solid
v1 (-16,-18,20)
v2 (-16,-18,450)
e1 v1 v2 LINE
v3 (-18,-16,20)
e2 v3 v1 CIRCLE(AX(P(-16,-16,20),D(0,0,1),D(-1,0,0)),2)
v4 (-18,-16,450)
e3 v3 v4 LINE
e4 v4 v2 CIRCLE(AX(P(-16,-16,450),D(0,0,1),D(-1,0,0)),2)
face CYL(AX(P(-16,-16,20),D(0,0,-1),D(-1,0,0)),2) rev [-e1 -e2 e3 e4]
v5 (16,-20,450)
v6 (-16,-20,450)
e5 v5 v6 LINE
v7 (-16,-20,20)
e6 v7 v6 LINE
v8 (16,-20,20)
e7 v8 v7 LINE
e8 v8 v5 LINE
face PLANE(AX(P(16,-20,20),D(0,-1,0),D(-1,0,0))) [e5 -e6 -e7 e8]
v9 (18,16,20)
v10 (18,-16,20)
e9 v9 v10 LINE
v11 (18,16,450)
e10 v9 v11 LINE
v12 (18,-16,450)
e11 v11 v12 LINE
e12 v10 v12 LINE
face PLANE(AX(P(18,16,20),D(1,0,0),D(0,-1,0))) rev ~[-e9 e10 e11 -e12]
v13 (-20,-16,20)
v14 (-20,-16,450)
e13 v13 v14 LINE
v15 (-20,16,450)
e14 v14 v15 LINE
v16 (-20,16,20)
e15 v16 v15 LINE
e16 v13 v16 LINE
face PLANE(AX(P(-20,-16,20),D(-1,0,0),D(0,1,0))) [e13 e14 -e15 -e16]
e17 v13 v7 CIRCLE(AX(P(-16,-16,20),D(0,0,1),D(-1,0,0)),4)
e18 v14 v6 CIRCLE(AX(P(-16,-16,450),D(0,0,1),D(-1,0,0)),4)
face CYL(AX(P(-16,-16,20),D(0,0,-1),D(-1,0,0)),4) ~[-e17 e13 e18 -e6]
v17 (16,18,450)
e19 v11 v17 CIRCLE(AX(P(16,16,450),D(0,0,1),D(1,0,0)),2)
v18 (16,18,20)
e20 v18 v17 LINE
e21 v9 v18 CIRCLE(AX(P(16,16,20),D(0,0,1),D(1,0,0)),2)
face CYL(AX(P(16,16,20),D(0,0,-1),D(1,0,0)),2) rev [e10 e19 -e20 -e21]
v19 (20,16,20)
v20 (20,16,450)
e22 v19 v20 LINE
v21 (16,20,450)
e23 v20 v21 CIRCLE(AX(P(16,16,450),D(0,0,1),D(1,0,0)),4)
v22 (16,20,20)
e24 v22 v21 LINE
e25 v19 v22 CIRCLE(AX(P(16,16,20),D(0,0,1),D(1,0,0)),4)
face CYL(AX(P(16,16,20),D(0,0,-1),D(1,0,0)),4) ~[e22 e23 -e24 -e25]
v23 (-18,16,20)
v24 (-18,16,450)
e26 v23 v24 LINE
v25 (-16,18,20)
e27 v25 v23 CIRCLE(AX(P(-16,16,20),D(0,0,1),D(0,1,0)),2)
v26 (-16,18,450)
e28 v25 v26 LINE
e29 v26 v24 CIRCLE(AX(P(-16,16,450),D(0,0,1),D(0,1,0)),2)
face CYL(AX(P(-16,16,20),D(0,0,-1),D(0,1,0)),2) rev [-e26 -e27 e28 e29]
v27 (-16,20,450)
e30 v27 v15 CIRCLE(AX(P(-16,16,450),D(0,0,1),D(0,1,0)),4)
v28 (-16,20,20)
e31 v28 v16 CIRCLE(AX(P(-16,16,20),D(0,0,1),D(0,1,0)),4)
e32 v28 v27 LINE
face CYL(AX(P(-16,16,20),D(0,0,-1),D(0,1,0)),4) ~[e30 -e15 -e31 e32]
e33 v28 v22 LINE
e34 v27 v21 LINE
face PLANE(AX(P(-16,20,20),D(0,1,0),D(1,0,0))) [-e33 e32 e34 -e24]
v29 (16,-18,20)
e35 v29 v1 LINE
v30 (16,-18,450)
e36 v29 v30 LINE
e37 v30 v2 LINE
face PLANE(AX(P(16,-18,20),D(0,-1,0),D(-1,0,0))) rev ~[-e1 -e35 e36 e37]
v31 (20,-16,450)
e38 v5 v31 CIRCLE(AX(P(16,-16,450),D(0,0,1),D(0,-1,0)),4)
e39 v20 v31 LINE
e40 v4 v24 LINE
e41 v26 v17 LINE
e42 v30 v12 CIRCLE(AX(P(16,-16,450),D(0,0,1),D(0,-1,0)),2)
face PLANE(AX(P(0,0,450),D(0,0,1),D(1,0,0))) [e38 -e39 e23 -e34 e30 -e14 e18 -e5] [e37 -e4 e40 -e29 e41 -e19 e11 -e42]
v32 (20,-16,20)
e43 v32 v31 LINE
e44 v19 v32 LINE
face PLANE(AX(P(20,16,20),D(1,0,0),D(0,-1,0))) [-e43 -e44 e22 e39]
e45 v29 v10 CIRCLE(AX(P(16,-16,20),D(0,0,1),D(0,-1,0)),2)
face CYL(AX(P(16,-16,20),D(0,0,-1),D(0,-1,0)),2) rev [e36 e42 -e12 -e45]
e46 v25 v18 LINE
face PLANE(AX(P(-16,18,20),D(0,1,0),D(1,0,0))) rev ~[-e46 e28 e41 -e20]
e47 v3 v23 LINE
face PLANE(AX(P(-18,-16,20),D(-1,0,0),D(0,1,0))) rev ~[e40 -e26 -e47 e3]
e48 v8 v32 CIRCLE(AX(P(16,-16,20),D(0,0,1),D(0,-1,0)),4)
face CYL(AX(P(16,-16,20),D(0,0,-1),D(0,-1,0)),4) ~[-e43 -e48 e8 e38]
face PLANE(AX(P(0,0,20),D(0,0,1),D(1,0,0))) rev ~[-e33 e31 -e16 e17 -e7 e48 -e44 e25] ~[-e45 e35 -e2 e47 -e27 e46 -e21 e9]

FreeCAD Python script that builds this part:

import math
import FreeCAD as App
import Part
import Sketcher
from FreeCAD import Vector
Q = App.Units.Quantity

doc = App.newDocument("Part")
params = doc.addObject("Spreadsheet::Sheet", "Params")
for row, (alias, value) in enumerate([
    ("sketch1_radius", "4 mm"),
    ("sketch1_radius2", "2 mm"),
    ("pad1_length", "430 mm"),
], start=1):
    params.set(f"A{row}", alias)
    params.set(f"B{row}", "=" + value)
    params.setAlias(f"B{row}", alias)

body = doc.addObject("PartDesign::Body", "Body")

sketch1 = doc.addObject("Sketcher::SketchObject", "Sketch")
body.addObject(sketch1)
sketch1.AttachmentSupport = (doc.XY_Plane, [""])
sketch1.MapMode = "FlatFace"
sketch1.AttachmentOffset = App.Placement(Vector(0, 0, 20), App.Rotation())
sketch1.addGeometry(Part.LineSegment(Vector(-20, 16, 0), Vector(-20, -16, 0)), False)
sketch1.addGeometry(Part.ArcOfCircle(Part.Circle(Vector(-16, -16, 0), Vector(0, 0, 1), 4), math.radians(180), math.radians(270)), False)
sketch1.addGeometry(Part.LineSegment(Vector(-16, -20, 0), Vector(16, -20, 0)), False)
sketch1.addGeometry(Part.ArcOfCircle(Part.Circle(Vector(16, -16, 0), Vector(0, 0, 1), 4), math.radians(-90), math.radians(0)), False)
sketch1.addGeometry(Part.LineSegment(Vector(20, -16, 0), Vector(20, 16, 0)), False)
sketch1.addGeometry(Part.ArcOfCircle(Part.Circle(Vector(16, 16, 0), Vector(0, 0, 1), 4), math.radians(0), math.radians(90)), False)
sketch1.addGeometry(Part.LineSegment(Vector(16, 20, 0), Vector(-16, 20, 0)), False)
sketch1.addGeometry(Part.ArcOfCircle(Part.Circle(Vector(-16, 16, 0), Vector(0, 0, 1), 4), math.radians(90), math.radians(180)), False)
sketch1.addGeometry(Part.ArcOfCircle(Part.Circle(Vector(-16, 16, 0), Vector(0, 0, 1), 2), math.radians(90), math.radians(180)), False)
sketch1.addGeometry(Part.LineSegment(Vector(-16, 18, 0), Vector(16, 18, 0)), False)
sketch1.addGeometry(Part.ArcOfCircle(Part.Circle(Vector(16, 16, 0), Vector(0, 0, 1), 2), math.radians(0), math.radians(90)), False)
sketch1.addGeometry(Part.LineSegment(Vector(18, 16, 0), Vector(18, -16, 0)), False)
sketch1.addGeometry(Part.ArcOfCircle(Part.Circle(Vector(16, -16, 0), Vector(0, 0, 1), 2), math.radians(-90), math.radians(0)), False)
sketch1.addGeometry(Part.LineSegment(Vector(16, -18, 0), Vector(-16, -18, 0)), False)
sketch1.addGeometry(Part.ArcOfCircle(Part.Circle(Vector(-16, -16, 0), Vector(0, 0, 1), 2), math.radians(180), math.radians(270)), False)
sketch1.addGeometry(Part.LineSegment(Vector(-18, -16, 0), Vector(-18, 16, 0)), False)
sketch1.addConstraint(Sketcher.Constraint("Tangent", 0, 2, 1, 1))
sketch1.addConstraint(Sketcher.Constraint("Tangent", 1, 2, 2, 1))
sketch1.addConstraint(Sketcher.Constraint("Tangent", 2, 2, 3, 1))
sketch1.addConstraint(Sketcher.Constraint("Tangent", 3, 2, 4, 1))
sketch1.addConstraint(Sketcher.Constraint("Tangent", 4, 2, 5, 1))
sketch1.addConstraint(Sketcher.Constraint("Tangent", 5, 2, 6, 1))
sketch1.addConstraint(Sketcher.Constraint("Tangent", 6, 2, 7, 1))
sketch1.addConstraint(Sketcher.Constraint("Tangent", 7, 2, 0, 1))
sketch1.addConstraint(Sketcher.Constraint("Tangent", 8, 1, 9, 1))
sketch1.addConstraint(Sketcher.Constraint("Tangent", 9, 2, 10, 2))
sketch1.addConstraint(Sketcher.Constraint("Tangent", 10, 1, 11, 1))
sketch1.addConstraint(Sketcher.Constraint("Tangent", 11, 2, 12, 2))
sketch1.addConstraint(Sketcher.Constraint("Tangent", 12, 1, 13, 1))
sketch1.addConstraint(Sketcher.Constraint("Tangent", 13, 2, 14, 2))
sketch1.addConstraint(Sketcher.Constraint("Tangent", 14, 1, 15, 1))
sketch1.addConstraint(Sketcher.Constraint("Tangent", 15, 2, 8, 2))
sketch1.addConstraint(Sketcher.Constraint("Vertical", 0))
sketch1.addConstraint(Sketcher.Constraint("Horizontal", 2))
sketch1.addConstraint(Sketcher.Constraint("Vertical", 4))
sketch1.addConstraint(Sketcher.Constraint("Horizontal", 6))
sketch1.addConstraint(Sketcher.Constraint("Horizontal", 9))
sketch1.addConstraint(Sketcher.Constraint("Vertical", 11))
sketch1.addConstraint(Sketcher.Constraint("Horizontal", 13))
sketch1.addConstraint(Sketcher.Constraint("Vertical", 15))
sketch1.addConstraint(Sketcher.Constraint("Coincident", 8, 3, 7, 3))
sketch1.addConstraint(Sketcher.Constraint("Coincident", 10, 3, 5, 3))
sketch1.addConstraint(Sketcher.Constraint("Coincident", 12, 3, 3, 3))
sketch1.addConstraint(Sketcher.Constraint("Equal", 1, 3))
sketch1.addConstraint(Sketcher.Constraint("Equal", 3, 5))
sketch1.addConstraint(Sketcher.Constraint("Equal", 5, 7))
sketch1.addConstraint(Sketcher.Constraint("Equal", 12, 14))
sketch1.addConstraint(Sketcher.Constraint("Symmetric", 1, 3, 5, 3, -1, 1))
sketch1.addConstraint(Sketcher.Constraint("Equal", 13, 0))
sketch1.addConstraint(Sketcher.Constraint("Radius", 1, Q("4 mm")))
sketch1.addConstraint(Sketcher.Constraint("Radius", 8, Q("2 mm")))
sketch1.addConstraint(Sketcher.Constraint("DistanceX", 0, 2, -1, 1, Q("20 mm")))
sketch1.setExpression("Constraints[33]", "Params.sketch1_radius")
sketch1.setExpression("Constraints[34]", "Params.sketch1_radius2")
pad1 = doc.addObject("PartDesign::Pad", "Pad")
body.addObject(pad1)
pad1.Profile = sketch1
pad1.setExpression("Length", "Params.pad1_length")

doc.recompute()
